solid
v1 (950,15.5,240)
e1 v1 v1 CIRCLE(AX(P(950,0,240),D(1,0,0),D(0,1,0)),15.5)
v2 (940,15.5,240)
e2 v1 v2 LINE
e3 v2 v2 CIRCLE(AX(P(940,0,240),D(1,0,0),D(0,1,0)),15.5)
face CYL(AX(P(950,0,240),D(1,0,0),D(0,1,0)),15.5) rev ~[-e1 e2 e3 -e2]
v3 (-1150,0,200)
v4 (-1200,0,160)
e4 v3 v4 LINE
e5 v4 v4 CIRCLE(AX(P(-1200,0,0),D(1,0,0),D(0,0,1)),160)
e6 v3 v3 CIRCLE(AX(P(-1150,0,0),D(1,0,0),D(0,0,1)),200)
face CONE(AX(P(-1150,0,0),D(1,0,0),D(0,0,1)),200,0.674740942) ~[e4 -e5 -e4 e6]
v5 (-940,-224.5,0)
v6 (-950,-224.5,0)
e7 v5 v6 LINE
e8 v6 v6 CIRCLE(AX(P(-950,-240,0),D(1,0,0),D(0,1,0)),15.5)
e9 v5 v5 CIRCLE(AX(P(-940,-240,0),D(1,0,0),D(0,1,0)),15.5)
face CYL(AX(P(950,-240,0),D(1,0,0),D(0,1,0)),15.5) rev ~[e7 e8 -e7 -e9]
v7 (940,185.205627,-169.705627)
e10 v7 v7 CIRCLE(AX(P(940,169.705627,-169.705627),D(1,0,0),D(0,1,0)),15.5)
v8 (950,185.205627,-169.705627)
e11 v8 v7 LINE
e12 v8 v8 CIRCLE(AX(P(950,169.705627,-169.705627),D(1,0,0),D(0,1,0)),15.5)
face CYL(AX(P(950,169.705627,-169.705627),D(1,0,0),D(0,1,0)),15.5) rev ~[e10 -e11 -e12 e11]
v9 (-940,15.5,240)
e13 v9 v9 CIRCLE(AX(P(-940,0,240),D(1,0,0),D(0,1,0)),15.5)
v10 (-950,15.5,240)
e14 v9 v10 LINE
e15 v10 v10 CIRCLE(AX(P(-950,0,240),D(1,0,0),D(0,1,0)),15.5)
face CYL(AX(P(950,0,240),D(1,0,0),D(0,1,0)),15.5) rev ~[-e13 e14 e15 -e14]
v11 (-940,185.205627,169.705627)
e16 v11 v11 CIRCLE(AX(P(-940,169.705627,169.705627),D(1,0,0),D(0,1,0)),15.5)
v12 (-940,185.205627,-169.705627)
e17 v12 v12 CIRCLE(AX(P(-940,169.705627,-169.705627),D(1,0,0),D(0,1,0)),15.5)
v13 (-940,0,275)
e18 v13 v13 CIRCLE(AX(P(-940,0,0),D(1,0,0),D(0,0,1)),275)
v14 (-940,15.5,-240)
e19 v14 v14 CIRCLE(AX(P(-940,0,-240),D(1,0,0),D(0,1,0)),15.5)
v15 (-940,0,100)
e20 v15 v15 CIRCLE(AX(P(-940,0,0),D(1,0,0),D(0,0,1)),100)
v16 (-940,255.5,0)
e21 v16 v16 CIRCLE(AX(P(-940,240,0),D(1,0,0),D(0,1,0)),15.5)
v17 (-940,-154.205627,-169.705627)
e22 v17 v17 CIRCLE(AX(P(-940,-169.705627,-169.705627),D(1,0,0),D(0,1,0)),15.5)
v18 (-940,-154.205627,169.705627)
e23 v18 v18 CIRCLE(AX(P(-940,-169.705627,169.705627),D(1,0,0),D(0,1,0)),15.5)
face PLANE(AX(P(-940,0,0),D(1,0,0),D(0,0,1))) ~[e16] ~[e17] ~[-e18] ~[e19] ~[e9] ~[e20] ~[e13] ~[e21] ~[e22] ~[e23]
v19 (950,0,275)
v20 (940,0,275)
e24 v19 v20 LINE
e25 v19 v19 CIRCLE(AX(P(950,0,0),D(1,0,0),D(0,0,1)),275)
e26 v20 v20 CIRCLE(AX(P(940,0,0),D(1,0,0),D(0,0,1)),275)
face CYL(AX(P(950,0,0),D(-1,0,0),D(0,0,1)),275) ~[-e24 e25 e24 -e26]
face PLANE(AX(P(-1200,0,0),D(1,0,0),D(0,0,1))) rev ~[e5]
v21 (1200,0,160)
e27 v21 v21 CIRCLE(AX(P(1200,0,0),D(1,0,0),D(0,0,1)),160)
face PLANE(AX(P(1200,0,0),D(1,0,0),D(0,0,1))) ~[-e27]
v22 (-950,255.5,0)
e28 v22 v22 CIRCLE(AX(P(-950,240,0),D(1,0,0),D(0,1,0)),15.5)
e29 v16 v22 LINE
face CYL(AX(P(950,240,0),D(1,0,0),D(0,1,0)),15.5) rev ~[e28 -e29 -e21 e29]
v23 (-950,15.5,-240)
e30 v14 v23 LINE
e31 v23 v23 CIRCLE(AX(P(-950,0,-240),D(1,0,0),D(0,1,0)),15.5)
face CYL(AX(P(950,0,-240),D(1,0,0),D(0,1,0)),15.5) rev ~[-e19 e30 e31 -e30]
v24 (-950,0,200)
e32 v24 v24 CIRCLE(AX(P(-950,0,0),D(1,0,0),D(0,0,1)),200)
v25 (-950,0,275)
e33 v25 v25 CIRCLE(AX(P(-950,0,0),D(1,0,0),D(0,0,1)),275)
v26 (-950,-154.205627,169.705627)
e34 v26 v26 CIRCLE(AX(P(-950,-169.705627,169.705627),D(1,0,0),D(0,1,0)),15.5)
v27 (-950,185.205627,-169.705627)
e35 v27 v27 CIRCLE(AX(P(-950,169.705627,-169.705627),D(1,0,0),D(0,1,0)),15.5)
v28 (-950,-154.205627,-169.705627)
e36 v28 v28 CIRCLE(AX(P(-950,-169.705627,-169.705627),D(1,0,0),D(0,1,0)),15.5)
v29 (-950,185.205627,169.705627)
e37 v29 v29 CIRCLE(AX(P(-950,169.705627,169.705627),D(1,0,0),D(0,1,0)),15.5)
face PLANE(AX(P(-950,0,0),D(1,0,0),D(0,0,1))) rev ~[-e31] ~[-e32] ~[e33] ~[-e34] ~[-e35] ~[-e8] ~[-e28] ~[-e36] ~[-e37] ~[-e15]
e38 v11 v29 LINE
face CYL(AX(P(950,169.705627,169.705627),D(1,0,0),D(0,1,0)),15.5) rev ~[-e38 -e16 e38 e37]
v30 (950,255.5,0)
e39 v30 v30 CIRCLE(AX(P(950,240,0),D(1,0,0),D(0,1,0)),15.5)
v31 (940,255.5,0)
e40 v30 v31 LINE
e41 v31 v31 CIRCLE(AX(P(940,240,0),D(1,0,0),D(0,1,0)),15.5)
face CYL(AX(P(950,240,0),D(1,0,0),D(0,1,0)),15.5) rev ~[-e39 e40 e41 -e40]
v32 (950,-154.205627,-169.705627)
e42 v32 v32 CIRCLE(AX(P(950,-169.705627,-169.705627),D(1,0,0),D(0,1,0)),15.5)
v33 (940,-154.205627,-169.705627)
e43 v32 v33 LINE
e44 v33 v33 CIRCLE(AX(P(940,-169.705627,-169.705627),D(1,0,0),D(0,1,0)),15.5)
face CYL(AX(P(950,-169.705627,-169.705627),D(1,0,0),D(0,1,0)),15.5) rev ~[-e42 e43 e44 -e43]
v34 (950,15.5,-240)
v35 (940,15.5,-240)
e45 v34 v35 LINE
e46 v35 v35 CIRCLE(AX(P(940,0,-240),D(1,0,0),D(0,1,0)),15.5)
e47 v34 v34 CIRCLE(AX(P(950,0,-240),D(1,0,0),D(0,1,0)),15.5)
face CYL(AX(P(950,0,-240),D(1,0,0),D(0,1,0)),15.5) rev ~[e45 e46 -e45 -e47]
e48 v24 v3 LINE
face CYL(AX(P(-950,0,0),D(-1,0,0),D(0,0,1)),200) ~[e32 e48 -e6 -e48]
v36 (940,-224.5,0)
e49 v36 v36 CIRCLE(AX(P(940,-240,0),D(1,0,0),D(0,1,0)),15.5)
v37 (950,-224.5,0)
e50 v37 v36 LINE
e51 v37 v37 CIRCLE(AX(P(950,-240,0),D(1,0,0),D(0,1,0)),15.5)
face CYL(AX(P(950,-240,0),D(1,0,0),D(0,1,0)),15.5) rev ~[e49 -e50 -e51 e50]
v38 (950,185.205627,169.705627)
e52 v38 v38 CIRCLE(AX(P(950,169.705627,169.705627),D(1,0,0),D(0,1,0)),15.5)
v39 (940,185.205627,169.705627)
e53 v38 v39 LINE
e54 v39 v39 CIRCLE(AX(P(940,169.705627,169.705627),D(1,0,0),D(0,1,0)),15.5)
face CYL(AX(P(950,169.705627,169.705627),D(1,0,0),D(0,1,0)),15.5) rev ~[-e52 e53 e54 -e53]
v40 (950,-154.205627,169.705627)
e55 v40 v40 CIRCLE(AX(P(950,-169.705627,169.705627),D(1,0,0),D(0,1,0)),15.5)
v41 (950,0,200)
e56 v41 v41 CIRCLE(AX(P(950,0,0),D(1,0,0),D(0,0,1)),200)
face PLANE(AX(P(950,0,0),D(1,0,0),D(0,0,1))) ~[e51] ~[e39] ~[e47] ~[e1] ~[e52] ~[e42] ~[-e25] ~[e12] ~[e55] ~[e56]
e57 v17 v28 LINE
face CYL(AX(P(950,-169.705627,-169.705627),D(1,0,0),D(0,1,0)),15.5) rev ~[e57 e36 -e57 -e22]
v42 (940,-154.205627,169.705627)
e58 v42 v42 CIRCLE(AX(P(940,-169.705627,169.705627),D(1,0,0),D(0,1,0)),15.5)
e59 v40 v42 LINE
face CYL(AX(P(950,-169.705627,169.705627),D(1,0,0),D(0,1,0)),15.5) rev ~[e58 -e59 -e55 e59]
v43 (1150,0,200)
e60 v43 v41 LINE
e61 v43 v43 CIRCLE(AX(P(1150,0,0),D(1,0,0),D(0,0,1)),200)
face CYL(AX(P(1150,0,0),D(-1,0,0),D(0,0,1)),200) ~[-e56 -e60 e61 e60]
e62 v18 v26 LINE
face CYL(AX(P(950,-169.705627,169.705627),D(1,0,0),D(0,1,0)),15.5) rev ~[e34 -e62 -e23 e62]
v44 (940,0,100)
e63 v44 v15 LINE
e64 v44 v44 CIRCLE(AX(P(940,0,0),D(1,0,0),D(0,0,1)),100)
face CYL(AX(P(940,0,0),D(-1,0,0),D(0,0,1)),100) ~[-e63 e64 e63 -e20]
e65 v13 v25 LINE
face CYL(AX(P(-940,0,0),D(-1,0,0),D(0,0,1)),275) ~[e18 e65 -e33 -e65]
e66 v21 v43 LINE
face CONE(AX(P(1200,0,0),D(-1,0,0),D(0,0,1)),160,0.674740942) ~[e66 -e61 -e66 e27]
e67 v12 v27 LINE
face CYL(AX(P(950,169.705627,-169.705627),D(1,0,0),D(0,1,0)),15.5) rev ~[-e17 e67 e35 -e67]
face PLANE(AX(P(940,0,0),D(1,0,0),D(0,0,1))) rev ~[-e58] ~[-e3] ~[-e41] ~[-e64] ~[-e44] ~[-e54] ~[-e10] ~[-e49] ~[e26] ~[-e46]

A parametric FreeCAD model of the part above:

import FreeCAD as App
import Part
import Sketcher
Q = App.Units.Quantity

doc = App.newDocument("Part")
body = doc.addObject("PartDesign::Body", "Body")

# Sketch on XZ plane
sketch1 = body.newObject("Sketcher::SketchObject", "Sketch")
sketch1.AttachmentSupport = (doc.getObject("XZ_Plane"), [""])
sketch1.MapMode = "FlatFace"
sketch1.addGeometry([
    Part.LineSegment(App.Vector(940, 100, 0), App.Vector(-940, 100, 0)),  # 0
    Part.LineSegment(App.Vector(-940, 100, 0), App.Vector(-940, 275, 0)),  # 1
    Part.LineSegment(App.Vector(-940, 275, 0), App.Vector(-950, 275, 0)),  # 2
    Part.LineSegment(App.Vector(-950, 275, 0), App.Vector(-950, 200, 0)),  # 3
    Part.LineSegment(App.Vector(-950, 200, 0), App.Vector(-1150, 200, 0)),  # 4
    Part.LineSegment(App.Vector(-1150, 200, 0), App.Vector(-1200, 160, 0)),  # 5
    Part.LineSegment(App.Vector(-1200, 160, 0), App.Vector(-1200, 0, 0)),  # 6
    Part.LineSegment(App.Vector(-1200, 0, 0), App.Vector(1200, 0, 0)),  # 7
    Part.LineSegment(App.Vector(1200, 0, 0), App.Vector(1200, 160, 0)),  # 8
    Part.LineSegment(App.Vector(1200, 160, 0), App.Vector(1150, 200, 0)),  # 9
    Part.LineSegment(App.Vector(1150, 200, 0), App.Vector(950, 200, 0)),  # 10
    Part.LineSegment(App.Vector(950, 200, 0), App.Vector(950, 275, 0)),  # 11
    Part.LineSegment(App.Vector(950, 275, 0), App.Vector(940, 275, 0)),  # 12
    Part.LineSegment(App.Vector(940, 275, 0), App.Vector(940, 100, 0)),  # 13
], False)
sketch1.addConstraint([
    Sketcher.Constraint("Coincident", 0, 2, 1, 1),
    Sketcher.Constraint("Coincident", 1, 2, 2, 1),
    Sketcher.Constraint("Coincident", 2, 2, 3, 1),
    Sketcher.Constraint("Coincident", 3, 2, 4, 1),
    Sketcher.Constraint("Coincident", 4, 2, 5, 1),
    Sketcher.Constraint("Coincident", 5, 2, 6, 1),
    Sketcher.Constraint("Coincident", 6, 2, 7, 1),
    Sketcher.Constraint("Coincident", 7, 2, 8, 1),
    Sketcher.Constraint("Coincident", 8, 2, 9, 1),
    Sketcher.Constraint("Coincident", 9, 2, 10, 1),
    Sketcher.Constraint("Coincident", 10, 2, 11, 1),
    Sketcher.Constraint("Coincident", 11, 2, 12, 1),
    Sketcher.Constraint("Coincident", 12, 2, 13, 1),
    Sketcher.Constraint("Coincident", 13, 2, 0, 1),
    Sketcher.Constraint("Horizontal", 0),
    Sketcher.Constraint("Vertical", 1),
    Sketcher.Constraint("Horizontal", 2),
    Sketcher.Constraint("Vertical", 3),
    Sketcher.Constraint("Horizontal", 4),
    Sketcher.Constraint("Vertical", 6),
    Sketcher.Constraint("Horizontal", 7),
    Sketcher.Constraint("Vertical", 8),
    Sketcher.Constraint("Horizontal", 10),
    Sketcher.Constraint("Vertical", 11),
    Sketcher.Constraint("Horizontal", 12),
    Sketcher.Constraint("Vertical", 13),
    Sketcher.Constraint("Symmetric", 6, 2, 7, 2, -1, 1),
    Sketcher.Constraint("Symmetric", 4, 2, 9, 2, -2),
    Sketcher.Constraint("Symmetric", 2, 2, 11, 2, -2),
    Sketcher.Constraint("Horizontal", 5, 2, 8, 2),
    Sketcher.Constraint("Equal", 2, 12),
    Sketcher.Constraint("DistanceX", 0, 2, 0, 1, Q("1880 mm")),
    Sketcher.Constraint("DistanceX", 2, 2, 2, 1, Q("10 mm")),
    Sketcher.Constraint("DistanceX", 4, 2, 4, 1, Q("200 mm")),
    Sketcher.Constraint("DistanceX", 7, 1, 7, 2, Q("2400 mm")),
    Sketcher.Constraint("DistanceY", 1, 1, 1, 2, Q("175 mm")),
    Sketcher.Constraint("DistanceY", 3, 2, 3, 1, Q("75 mm")),
    Sketcher.Constraint("DistanceY", 6, 2, 6, 1, Q("160 mm")),
    Sketcher.Constraint("DistanceY", -1, 1, 0, 2, Q("100 mm")),
])
revolution = body.newObject("PartDesign::Revolution", "Revolution")
revolution.Profile = sketch1
revolution.ReferenceAxis = (sketch1, ["H_Axis"])
revolution.Angle = 360

# Sketch on YZ plane
sketch2 = body.newObject("Sketcher::SketchObject", "Sketch001")
sketch2.AttachmentSupport = (doc.getObject("YZ_Plane"), [""])
sketch2.MapMode = "FlatFace"
sketch2.AttachmentOffset = App.Placement(App.Vector(0, 0, 950), App.Rotation())
sketch2.addGeometry([
    Part.Circle(App.Vector(0, 240, 0), App.Vector(0, 0, 1), 15.5),  # 0
    Part.Circle(App.Vector(-169.705627, 169.705627, 0), App.Vector(0, 0, 1), 15.5),  # 1
    Part.Circle(App.Vector(-240, 0, 0), App.Vector(0, 0, 1), 15.5),  # 2
    Part.Circle(App.Vector(-169.705627, -169.705627, 0), App.Vector(0, 0, 1), 15.5),  # 3
    Part.Circle(App.Vector(0, -240, 0), App.Vector(0, 0, 1), 15.5),  # 4
    Part.Circle(App.Vector(169.705627, -169.705627, 0), App.Vector(0, 0, 1), 15.5),  # 5
    Part.Circle(App.Vector(240, 0, 0), App.Vector(0, 0, 1), 15.5),  # 6
    Part.Circle(App.Vector(169.705627, 169.705627, 0), App.Vector(0, 0, 1), 15.5),  # 7
], False)
sketch2.addConstraint([
    Sketcher.Constraint("Equal", 0, 1),
    Sketcher.Constraint("Equal", 1, 2),
    Sketcher.Constraint("Equal", 2, 3),
    Sketcher.Constraint("Equal", 3, 4),
    Sketcher.Constraint("Equal", 4, 5),
    Sketcher.Constraint("Equal", 5, 6),
    Sketcher.Constraint("Equal", 6, 7),
    Sketcher.Constraint("Symmetric", 0, 3, 4, 3, -1, 1),
    Sketcher.Constraint("Symmetric", 1, 3, 5, 3, -1, 1),
    Sketcher.Constraint("Symmetric", 2, 3, 6, 3, -1, 1),
    Sketcher.Constraint("Symmetric", 3, 3, 7, 3, -1, 1),
    Sketcher.Constraint("Symmetric", 3, 3, 5, 3, -2),
    Sketcher.Constraint("PointOnObject", 0, 3, -2),
    Sketcher.Constraint("PointOnObject", 2, 3, -1),
    Sketcher.Constraint("Diameter", 0, Q("31 mm")),
    Sketcher.Constraint("DistanceY", -1, 1, 0, 3, Q("240 mm")),
    Sketcher.Constraint("DistanceX", 2, 3, -1, 1, Q("240 mm")),
    Sketcher.Constraint("DistanceX", 1, 3, -1, 1, Q("169.705627 mm")),
    Sketcher.Constraint("DistanceY", -1, 1, 1, 3, Q("169.705627 mm")),
])
pocket1 = body.newObject("PartDesign::Pocket", "Pocket")
pocket1.Profile = sketch2
pocket1.Type = "ThroughAll"

doc.recompute()
